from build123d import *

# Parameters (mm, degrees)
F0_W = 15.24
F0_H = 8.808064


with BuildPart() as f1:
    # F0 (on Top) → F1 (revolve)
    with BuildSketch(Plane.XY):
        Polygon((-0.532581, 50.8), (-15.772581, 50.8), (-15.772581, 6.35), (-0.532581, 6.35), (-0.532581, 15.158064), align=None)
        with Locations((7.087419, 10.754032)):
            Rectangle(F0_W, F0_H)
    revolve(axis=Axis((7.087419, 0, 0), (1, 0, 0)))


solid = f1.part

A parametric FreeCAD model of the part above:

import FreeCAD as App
import Part
import Sketcher

V = App.Vector
Q = App.Units.Quantity


def add_polygon(sketch, points):
    """Adds a closed chain of lines whose ends are joined by coincident constraints."""
    first, n = sketch.GeometryCount, len(points)
    for a, b in zip(points, points[1:] + points[:1]):
        sketch.addGeometry(Part.LineSegment(App.Vector(*a, 0), App.Vector(*b, 0)), False)
    for i in range(n):
        sketch.addConstraint(Sketcher.Constraint("Coincident", first + i, 2, first + (i + 1) % n, 1))

doc = App.newDocument("Part")
body = doc.addObject("PartDesign::Body", "Body")

sketch1 = body.newObject("Sketcher::SketchObject", "Sketch")
sketch1.AttachmentSupport = (doc.getObject("XY_Plane"), [""])
sketch1.MapMode = "FlatFace"
add_polygon(sketch1, [(-0.532581, 50.8), (-15.772581, 50.8), (-15.772581, 6.35), (14.707419, 6.35), (14.707419, 15.158064), (-0.532581, 15.158064)])
sketch1.addConstraint([
    Sketcher.Constraint("Horizontal", 0),
    Sketcher.Constraint("Vertical", 1),
    Sketcher.Constraint("Horizontal", 2),
    Sketcher.Constraint("Vertical", 3),
    Sketcher.Constraint("Horizontal", 4),
    Sketcher.Constraint("Vertical", 5),
    Sketcher.Constraint("Equal", 0, 4),
    Sketcher.Constraint("DistanceX", 0, 2, 0, 1, Q("0.6 in")),
    Sketcher.Constraint("DistanceY", -1, 1, 0, 2, Q("2 in")),
    Sketcher.Constraint("DistanceY", 1, 2, 1, 1, Q("1.75 in")),
    Sketcher.Constraint("DistanceY", 3, 1, 3, 2, Q("8.808064 mm")),
    Sketcher.Constraint("DistanceX", 0, 2, -1, 1, Q("15.772581 mm")),
])
revolution = body.newObject("PartDesign::Revolution", "Revolution")
revolution.Profile = sketch1
revolution.ReferenceAxis = (sketch1, ["H_Axis"])
revolution.Angle = 360

doc.recompute()
